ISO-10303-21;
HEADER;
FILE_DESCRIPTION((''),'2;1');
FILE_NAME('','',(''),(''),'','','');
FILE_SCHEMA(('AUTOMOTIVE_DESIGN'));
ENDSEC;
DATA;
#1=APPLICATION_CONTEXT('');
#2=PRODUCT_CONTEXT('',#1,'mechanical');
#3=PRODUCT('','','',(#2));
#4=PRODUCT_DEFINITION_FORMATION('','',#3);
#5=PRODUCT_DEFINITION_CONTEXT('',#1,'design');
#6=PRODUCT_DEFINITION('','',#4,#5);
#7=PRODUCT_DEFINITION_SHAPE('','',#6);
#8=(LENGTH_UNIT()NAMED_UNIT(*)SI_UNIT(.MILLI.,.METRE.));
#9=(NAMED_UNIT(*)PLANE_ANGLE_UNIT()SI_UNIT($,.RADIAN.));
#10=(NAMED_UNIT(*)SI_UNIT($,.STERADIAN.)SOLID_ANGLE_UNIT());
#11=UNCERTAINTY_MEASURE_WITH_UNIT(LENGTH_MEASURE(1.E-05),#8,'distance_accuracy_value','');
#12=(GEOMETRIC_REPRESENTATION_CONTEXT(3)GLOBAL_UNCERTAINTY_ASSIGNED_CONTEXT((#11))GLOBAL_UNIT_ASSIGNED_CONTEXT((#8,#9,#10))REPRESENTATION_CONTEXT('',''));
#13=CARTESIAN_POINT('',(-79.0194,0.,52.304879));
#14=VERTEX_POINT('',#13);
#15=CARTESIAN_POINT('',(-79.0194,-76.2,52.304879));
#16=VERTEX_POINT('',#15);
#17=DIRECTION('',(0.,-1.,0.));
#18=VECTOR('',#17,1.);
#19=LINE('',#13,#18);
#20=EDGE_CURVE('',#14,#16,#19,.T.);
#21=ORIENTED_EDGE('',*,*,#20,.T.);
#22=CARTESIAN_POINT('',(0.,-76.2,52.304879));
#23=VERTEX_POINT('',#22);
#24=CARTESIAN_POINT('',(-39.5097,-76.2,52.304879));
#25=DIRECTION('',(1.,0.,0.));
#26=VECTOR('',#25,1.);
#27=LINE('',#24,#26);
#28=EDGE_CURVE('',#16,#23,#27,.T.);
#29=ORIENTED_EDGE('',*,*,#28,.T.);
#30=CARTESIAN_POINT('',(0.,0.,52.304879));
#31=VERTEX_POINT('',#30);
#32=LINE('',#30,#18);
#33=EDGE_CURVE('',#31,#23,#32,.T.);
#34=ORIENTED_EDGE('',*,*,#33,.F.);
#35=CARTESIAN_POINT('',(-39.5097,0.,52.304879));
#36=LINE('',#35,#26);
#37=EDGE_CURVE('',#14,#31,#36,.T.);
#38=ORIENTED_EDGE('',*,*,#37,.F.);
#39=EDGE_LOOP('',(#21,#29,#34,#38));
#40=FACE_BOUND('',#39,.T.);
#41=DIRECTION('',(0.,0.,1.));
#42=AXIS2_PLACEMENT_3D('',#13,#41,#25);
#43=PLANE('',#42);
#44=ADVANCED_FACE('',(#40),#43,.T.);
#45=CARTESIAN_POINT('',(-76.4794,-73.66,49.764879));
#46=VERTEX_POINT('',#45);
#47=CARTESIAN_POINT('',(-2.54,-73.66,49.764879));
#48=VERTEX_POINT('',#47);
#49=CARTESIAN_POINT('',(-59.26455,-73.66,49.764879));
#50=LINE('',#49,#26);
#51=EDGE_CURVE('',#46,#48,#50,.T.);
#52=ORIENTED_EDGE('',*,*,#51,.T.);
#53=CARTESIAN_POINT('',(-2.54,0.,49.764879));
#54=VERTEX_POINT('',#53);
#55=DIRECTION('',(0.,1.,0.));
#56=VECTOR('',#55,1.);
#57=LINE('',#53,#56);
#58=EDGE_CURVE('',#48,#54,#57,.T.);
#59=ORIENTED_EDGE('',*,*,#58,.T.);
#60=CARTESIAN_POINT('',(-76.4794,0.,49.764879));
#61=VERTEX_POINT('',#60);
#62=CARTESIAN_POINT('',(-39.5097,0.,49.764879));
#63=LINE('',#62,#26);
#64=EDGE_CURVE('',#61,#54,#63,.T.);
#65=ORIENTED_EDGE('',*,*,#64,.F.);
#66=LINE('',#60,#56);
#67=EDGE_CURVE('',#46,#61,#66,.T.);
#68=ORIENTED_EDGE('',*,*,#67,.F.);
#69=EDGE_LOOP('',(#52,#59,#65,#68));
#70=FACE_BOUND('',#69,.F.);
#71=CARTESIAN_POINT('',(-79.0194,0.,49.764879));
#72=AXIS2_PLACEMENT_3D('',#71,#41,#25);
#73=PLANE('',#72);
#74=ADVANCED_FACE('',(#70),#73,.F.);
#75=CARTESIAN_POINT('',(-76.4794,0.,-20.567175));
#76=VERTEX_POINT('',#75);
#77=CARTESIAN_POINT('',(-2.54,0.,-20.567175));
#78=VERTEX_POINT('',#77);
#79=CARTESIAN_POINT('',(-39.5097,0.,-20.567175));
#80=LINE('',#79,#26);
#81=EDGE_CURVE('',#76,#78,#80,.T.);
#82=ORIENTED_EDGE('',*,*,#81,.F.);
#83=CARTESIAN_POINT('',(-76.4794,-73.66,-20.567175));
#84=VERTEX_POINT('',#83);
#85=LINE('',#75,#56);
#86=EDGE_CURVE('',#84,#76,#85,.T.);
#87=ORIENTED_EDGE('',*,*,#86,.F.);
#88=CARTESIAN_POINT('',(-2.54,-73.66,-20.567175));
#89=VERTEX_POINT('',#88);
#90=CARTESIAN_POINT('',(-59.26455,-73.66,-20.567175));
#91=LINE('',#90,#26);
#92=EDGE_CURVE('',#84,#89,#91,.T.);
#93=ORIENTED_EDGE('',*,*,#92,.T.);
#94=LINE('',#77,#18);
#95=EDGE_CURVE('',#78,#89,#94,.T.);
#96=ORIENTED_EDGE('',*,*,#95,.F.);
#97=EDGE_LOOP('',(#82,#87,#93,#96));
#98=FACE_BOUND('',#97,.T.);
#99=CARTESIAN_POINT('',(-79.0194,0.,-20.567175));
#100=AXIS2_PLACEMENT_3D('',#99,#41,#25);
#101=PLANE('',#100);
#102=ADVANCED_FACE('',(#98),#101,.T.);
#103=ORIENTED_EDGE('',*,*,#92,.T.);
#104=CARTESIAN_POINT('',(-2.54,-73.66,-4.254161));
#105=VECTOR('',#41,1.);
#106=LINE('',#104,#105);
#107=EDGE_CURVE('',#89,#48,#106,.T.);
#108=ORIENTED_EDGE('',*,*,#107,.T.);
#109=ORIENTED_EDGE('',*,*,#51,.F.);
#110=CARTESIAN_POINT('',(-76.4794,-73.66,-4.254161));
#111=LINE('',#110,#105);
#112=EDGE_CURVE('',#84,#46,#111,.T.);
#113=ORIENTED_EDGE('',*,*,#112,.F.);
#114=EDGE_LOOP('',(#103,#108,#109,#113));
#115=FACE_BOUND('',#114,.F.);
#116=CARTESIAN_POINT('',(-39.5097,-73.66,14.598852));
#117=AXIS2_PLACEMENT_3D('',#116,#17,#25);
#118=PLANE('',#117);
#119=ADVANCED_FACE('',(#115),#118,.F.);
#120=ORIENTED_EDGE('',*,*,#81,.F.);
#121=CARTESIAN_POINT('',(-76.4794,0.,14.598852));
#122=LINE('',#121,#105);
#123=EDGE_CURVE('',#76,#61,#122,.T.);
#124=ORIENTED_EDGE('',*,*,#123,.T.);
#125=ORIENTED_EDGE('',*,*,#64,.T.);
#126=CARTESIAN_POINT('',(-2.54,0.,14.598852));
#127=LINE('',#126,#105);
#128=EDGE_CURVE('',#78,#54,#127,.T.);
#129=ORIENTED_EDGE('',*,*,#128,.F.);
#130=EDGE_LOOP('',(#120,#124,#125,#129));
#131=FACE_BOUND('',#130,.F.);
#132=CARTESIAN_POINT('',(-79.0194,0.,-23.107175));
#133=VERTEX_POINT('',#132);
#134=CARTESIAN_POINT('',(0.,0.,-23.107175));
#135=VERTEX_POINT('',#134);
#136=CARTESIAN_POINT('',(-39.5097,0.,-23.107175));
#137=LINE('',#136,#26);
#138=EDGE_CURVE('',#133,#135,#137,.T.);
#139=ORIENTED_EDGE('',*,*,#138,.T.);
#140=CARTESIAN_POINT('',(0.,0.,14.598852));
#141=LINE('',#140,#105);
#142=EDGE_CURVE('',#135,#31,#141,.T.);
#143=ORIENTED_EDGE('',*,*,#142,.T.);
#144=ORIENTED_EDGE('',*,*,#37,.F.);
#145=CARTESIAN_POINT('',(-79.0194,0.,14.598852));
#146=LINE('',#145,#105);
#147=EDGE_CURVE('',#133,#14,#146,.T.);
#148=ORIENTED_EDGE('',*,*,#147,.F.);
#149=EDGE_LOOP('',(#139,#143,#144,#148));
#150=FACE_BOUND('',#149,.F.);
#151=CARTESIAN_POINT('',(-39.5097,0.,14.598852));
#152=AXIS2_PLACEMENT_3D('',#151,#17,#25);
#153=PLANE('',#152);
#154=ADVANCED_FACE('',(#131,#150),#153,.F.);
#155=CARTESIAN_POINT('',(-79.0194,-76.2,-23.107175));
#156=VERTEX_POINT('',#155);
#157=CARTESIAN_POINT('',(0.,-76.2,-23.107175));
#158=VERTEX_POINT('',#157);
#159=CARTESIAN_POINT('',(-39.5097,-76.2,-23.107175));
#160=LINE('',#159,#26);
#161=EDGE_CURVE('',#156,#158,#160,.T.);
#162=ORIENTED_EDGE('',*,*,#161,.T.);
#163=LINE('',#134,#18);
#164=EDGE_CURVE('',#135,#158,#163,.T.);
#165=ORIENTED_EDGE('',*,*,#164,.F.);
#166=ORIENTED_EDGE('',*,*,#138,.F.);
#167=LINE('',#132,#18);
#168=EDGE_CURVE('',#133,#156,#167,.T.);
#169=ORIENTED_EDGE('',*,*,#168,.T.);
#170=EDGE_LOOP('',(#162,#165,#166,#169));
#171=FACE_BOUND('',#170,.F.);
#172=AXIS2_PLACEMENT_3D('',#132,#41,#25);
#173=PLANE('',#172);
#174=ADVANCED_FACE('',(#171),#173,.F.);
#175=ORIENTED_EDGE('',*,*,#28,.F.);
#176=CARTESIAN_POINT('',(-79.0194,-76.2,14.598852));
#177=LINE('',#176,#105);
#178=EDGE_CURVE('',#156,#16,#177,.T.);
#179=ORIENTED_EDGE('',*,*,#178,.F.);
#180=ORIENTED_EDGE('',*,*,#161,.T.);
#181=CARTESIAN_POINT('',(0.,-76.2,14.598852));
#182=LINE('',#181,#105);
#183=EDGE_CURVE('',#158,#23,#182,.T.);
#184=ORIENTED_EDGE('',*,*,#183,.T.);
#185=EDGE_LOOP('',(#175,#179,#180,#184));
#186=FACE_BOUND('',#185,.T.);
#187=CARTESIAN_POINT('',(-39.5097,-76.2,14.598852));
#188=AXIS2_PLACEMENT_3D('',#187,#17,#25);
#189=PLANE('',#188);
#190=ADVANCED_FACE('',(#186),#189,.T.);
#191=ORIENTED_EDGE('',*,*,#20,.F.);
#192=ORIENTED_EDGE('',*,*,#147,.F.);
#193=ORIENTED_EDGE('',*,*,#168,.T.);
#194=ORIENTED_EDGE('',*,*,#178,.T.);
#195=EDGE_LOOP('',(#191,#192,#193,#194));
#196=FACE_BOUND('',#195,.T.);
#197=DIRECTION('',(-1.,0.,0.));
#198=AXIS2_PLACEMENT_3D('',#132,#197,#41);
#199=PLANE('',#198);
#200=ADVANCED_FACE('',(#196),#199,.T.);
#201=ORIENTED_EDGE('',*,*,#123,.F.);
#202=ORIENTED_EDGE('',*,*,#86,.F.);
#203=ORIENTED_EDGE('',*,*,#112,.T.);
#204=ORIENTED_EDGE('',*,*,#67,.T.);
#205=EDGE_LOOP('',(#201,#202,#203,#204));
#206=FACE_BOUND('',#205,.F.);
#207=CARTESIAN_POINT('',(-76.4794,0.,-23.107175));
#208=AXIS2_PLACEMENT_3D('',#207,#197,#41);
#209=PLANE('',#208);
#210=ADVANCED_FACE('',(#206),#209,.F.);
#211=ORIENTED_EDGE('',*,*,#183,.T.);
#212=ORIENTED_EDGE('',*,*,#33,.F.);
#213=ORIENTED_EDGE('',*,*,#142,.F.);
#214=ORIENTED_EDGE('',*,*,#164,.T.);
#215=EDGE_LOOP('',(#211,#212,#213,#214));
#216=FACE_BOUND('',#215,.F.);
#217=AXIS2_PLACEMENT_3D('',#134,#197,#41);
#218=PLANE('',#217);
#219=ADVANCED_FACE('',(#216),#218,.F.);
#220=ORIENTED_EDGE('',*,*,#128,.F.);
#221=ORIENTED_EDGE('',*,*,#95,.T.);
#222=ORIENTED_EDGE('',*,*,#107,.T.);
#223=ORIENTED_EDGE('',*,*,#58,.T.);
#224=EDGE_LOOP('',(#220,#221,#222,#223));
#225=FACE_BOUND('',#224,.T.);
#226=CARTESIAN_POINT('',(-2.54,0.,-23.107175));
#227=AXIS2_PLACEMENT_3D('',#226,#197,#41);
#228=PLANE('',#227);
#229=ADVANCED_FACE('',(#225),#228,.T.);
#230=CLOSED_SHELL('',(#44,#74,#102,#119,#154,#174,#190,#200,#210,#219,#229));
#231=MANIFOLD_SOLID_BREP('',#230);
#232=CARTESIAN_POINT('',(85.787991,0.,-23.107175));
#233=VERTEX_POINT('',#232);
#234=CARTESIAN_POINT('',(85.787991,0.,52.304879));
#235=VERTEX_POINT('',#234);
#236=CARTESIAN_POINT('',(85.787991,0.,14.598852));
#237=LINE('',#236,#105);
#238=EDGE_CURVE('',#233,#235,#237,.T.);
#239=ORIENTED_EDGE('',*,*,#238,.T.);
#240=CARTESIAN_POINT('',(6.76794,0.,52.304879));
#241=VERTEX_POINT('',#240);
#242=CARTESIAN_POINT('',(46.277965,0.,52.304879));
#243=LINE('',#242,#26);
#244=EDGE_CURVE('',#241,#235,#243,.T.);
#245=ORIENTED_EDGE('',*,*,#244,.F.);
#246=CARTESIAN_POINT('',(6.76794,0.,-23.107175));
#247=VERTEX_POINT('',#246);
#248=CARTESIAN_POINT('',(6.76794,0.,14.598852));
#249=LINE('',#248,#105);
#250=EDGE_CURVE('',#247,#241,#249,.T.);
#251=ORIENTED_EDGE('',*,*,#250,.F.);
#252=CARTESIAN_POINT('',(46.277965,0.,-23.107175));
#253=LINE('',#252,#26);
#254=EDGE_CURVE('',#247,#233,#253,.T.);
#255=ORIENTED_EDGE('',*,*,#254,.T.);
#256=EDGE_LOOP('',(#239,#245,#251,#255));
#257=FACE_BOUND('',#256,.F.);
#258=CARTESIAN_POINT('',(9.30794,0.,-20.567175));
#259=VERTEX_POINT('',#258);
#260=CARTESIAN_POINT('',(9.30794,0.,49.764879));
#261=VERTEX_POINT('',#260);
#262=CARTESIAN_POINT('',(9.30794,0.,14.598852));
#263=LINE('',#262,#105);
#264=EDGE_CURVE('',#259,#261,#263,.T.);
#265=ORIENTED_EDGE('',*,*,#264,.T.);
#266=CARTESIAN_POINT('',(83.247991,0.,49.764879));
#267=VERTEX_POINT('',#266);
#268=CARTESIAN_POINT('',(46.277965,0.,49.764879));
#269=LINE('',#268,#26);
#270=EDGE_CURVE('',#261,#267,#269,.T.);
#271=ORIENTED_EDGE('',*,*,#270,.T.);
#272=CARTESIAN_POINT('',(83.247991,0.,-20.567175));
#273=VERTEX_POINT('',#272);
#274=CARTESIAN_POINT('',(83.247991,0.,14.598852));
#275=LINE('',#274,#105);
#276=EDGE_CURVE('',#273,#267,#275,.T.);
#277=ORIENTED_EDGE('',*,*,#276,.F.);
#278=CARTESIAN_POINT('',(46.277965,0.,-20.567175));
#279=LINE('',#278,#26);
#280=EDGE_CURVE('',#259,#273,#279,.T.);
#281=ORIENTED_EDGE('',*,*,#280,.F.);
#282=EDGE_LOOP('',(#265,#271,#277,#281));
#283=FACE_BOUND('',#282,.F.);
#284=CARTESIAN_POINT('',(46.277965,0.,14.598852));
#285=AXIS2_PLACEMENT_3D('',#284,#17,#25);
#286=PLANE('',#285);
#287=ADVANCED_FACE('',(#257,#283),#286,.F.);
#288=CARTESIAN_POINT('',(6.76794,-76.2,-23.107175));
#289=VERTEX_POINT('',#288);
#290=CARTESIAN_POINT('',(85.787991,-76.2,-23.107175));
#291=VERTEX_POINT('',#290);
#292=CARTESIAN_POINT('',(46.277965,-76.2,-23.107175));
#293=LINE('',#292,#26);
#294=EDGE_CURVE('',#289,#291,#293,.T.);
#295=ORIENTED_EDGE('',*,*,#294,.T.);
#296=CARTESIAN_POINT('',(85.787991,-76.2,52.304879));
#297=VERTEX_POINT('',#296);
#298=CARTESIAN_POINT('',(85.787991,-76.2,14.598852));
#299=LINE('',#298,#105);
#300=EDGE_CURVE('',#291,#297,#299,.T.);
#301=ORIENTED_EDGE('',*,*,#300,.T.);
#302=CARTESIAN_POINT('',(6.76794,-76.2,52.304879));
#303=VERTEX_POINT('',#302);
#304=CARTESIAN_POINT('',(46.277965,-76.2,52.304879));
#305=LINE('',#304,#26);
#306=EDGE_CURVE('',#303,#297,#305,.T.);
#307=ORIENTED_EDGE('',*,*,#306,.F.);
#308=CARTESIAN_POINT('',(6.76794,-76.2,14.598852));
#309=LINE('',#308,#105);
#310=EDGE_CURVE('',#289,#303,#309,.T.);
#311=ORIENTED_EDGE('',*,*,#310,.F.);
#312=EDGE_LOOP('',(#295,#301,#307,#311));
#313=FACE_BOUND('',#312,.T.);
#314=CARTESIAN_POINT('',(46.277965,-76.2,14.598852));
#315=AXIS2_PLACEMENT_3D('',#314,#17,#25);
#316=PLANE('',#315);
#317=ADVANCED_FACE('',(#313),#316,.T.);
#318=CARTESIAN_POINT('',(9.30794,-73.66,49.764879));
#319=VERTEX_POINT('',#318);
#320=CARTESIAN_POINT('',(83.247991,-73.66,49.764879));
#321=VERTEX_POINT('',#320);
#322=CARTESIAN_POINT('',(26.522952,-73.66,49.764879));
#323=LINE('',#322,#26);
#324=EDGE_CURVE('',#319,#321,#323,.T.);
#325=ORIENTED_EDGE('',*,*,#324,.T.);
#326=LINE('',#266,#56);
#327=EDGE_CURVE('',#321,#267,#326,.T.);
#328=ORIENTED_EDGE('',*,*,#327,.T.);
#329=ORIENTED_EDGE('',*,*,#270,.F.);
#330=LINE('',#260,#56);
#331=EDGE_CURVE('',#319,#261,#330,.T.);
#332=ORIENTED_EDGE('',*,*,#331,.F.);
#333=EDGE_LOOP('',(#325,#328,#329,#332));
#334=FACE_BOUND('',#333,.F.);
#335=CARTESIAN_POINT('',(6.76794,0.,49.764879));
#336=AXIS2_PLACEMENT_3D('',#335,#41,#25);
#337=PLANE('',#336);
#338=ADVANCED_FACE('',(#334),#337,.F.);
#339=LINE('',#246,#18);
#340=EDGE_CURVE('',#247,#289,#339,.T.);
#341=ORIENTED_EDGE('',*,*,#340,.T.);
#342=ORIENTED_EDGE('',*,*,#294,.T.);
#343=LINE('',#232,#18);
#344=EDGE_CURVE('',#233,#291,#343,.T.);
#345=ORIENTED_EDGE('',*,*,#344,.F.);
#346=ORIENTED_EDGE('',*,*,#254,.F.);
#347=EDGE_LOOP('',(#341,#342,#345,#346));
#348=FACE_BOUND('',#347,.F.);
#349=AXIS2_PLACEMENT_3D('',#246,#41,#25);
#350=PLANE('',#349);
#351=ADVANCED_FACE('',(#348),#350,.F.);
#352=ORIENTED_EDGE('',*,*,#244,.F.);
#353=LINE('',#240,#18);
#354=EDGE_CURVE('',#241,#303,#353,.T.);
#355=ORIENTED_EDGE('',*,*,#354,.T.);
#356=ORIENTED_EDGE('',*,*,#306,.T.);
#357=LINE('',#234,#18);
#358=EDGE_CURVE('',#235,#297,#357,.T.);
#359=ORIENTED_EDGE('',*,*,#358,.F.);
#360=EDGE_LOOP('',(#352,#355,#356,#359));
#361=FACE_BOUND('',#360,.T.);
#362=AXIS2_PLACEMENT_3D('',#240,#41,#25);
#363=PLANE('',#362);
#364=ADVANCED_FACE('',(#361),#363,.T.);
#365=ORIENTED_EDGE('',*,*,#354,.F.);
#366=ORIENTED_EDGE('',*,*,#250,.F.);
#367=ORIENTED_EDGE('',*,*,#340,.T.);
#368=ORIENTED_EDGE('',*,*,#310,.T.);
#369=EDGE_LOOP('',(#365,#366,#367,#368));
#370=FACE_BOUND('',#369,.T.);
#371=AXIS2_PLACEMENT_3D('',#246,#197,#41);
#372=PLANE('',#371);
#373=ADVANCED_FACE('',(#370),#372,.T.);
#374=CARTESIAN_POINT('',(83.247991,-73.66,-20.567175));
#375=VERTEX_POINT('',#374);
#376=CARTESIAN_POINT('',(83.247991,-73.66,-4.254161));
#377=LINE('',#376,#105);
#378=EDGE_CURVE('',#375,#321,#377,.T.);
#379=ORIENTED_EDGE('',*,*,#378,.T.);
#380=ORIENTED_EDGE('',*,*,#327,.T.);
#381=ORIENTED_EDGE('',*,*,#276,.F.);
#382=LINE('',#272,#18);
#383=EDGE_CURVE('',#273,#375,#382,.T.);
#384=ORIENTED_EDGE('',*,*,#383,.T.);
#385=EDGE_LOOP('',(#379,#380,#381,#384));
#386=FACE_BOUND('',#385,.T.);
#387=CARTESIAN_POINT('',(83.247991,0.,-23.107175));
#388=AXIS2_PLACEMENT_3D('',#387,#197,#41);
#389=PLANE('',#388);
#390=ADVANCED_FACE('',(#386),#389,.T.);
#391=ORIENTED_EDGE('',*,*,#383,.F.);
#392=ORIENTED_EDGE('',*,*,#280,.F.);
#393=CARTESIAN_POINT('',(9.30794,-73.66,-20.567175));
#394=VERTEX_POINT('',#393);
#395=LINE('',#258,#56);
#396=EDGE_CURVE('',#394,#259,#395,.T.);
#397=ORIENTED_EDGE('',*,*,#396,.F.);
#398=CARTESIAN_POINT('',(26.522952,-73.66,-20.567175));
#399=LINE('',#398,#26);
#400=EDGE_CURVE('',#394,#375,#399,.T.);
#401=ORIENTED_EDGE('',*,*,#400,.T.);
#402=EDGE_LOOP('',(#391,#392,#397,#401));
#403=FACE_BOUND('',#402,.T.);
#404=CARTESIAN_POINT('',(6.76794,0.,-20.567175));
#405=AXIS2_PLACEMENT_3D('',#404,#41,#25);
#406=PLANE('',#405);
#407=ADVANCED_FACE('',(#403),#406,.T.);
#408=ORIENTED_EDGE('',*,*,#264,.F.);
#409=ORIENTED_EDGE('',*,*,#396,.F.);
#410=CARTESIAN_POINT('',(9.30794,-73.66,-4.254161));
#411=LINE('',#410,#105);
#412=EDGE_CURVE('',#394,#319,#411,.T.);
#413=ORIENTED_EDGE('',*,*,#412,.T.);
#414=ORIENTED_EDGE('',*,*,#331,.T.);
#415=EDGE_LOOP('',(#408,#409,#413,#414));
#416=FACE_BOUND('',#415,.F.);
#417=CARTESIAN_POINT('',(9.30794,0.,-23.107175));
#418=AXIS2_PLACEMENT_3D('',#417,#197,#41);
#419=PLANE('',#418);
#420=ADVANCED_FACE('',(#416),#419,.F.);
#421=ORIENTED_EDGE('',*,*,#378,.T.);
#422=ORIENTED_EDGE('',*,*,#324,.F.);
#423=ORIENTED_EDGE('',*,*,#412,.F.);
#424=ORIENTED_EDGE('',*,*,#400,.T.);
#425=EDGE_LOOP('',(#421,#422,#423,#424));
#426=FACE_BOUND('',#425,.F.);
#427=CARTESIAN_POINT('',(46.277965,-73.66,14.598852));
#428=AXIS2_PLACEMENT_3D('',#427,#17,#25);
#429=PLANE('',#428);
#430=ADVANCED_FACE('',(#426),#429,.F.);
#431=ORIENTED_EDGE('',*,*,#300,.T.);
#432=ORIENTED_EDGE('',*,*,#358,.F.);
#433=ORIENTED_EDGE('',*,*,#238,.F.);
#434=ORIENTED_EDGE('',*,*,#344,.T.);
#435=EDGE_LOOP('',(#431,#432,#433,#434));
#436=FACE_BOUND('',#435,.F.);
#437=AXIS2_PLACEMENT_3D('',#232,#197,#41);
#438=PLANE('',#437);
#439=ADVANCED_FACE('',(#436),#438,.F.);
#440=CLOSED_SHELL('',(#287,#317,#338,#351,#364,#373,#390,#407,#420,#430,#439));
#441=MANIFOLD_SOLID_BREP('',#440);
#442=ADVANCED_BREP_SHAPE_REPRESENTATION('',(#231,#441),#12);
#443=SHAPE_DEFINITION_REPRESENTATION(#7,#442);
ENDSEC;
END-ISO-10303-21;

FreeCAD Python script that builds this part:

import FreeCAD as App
import Part
import Sketcher
Q = App.Units.Quantity


def faces_at(feature, points):
    """Names of the faces that lie closest to the given points."""
    faces = feature.Shape.Faces
    near = lambda p: min(range(len(faces)), key=lambda i: faces[i].distToShape(Part.Vertex(*p))[0])
    return sorted({f"Face{near(p) + 1}" for p in points})

doc = App.newDocument("Part")
params = doc.addObject("Spreadsheet::Sheet", "Params")
for row, (alias, value) in enumerate([
    ("pad1_length", "3 in"),
    ("thickness_wall", "0.1 in"),
    ("sketch2_width", "3.111 in"),
    ("pad2_length", "3 in"),
    ("thickness2_wall", "0.1 in"),
], start=1):
    params.set(f"A{row}", alias)
    params.set(f"B{row}", "=" + value)
    params.setAlias(f"B{row}", alias)

body = doc.addObject("PartDesign::Body", "Body")

sketch1 = body.newObject("Sketcher::SketchObject", "Sketch")
sketch1.AttachmentSupport = (doc.getObject("XZ_Plane"), [""])
sketch1.MapMode = "FlatFace"
sketch1.addGeometry([
    Part.LineSegment(App.Vector(7, 52, 0), App.Vector(7, -23, 0)),
    Part.LineSegment(App.Vector(7, -23, 0), App.Vector(86, -23, 0)),
    Part.LineSegment(App.Vector(86, -23, 0), App.Vector(86, 52, 0)),
    Part.LineSegment(App.Vector(86, 52, 0), App.Vector(7, 52, 0)),
], False)
sketch1.addConstraint([
    Sketcher.Constraint("Coincident", 0, 2, 1, 1),
    Sketcher.Constraint("Coincident", 1, 2, 2, 1),
    Sketcher.Constraint("Coincident", 2, 2, 3, 1),
    Sketcher.Constraint("Coincident", 3, 2, 0, 1),
    Sketcher.Constraint("Vertical", 0),
    Sketcher.Constraint("Horizontal", 1),
    Sketcher.Constraint("Vertical", 2),
    Sketcher.Constraint("Horizontal", 3),
    Sketcher.Constraint("DistanceX", 1, 1, 1, 2, 79.020051),
    Sketcher.Constraint("DistanceY", 0, 2, 0, 1, 75.412054),
    Sketcher.Constraint("DistanceX", -1, 1, 0, 2, 6.76794),
    Sketcher.Constraint("DistanceY", -1, 1, 2, 2, 52.304879),
])
pad1 = body.newObject("PartDesign::Pad", "Pad")
pad1.Profile = sketch1
pad1.setExpression("Length", "Params.pad1_length")
doc.recompute()

thickness = body.newObject("PartDesign::Thickness", "Thickness")
thickness.Base = (pad1, faces_at(pad1, [(46.278, 0, 14.599)]))
thickness.setExpression("Value", "Params.thickness_wall")
thickness.Reversed = True
thickness.Join = "Arc"
body2 = doc.addObject("PartDesign::Body", "Body001")

sketch2 = body2.newObject("Sketcher::SketchObject", "Sketch001")
sketch2.AttachmentSupport = (doc.getObject("XZ_Plane001"), [""])
sketch2.MapMode = "FlatFace"
sketch2.addGeometry([
    Part.LineSegment(App.Vector(-79, 52, 0), App.Vector(-79, -23, 0)),
    Part.LineSegment(App.Vector(-79, -23, 0), App.Vector(0, -23, 0)),
    Part.LineSegment(App.Vector(0, -23, 0), App.Vector(0, 52, 0)),
    Part.LineSegment(App.Vector(0, 52, 0), App.Vector(-79, 52, 0)),
], False)
sketch2.addConstraint([
    Sketcher.Constraint("Coincident", 0, 2, 1, 1),
    Sketcher.Constraint("Coincident", 1, 2, 2, 1),
    Sketcher.Constraint("Coincident", 2, 2, 3, 1),
    Sketcher.Constraint("Coincident", 3, 2, 0, 1),
    Sketcher.Constraint("Vertical", 0),
    Sketcher.Constraint("Horizontal", 1),
    Sketcher.Constraint("Vertical", 2),
    Sketcher.Constraint("Horizontal", 3),
    Sketcher.Constraint("PointOnObject", 1, 2, -2),
    Sketcher.Constraint("DistanceX", 1, 1, 1, 2, Q("3.111 in")),
    Sketcher.Constraint("DistanceY", 0, 2, 0, 1, 75.412054),
    Sketcher.Constraint("DistanceY", -1, 1, 2, 2, 52.304879),
])
sketch2.setExpression("Constraints[9]", "Params.sketch2_width")
pad2 = body2.newObject("PartDesign::Pad", "Pad001")
pad2.Profile = sketch2
pad2.setExpression("Length", "Params.pad2_length")
doc.recompute()

thickness2 = body2.newObject("PartDesign::Thickness", "Thickness001")
thickness2.Base = (pad2, faces_at(pad2, [(-39.51, 0, 14.599)]))
thickness2.setExpression("Value", "Params.thickness2_wall")
thickness2.Reversed = True
thickness2.Join = "Arc"

doc.recompute()
